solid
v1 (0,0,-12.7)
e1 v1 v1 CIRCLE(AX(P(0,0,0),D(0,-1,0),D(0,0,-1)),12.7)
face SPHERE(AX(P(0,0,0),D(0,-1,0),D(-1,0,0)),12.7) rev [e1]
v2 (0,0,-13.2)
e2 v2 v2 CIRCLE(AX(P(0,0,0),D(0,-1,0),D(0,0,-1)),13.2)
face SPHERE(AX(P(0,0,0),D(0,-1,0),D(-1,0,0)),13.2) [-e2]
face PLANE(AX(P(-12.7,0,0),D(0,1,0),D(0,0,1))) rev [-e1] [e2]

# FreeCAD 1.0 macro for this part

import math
import FreeCAD as App
import Part
import Sketcher

V = App.Vector
Q = App.Units.Quantity

doc = App.newDocument("Part")
body = doc.addObject("PartDesign::Body", "Body")

sketch1 = body.newObject("Sketcher::SketchObject", "Sketch")
sketch1.AttachmentSupport = (doc.getObject("XY_Plane"), [""])
sketch1.MapMode = "FlatFace"
sketch1.addGeometry([
    Part.LineSegment(V(-13.2, 0, 0), V(-12.7, 0, 0)),
    Part.ArcOfCircle(Part.Circle(V(0, 0, 0), V(0, 0, 1), 12.7), math.radians(90), math.radians(180)),
    Part.LineSegment(V(0, 12.7, 0), V(0, 13.2, 0)),
    Part.ArcOfCircle(Part.Circle(V(0, 0, 0), V(0, 0, 1), 13.2), math.radians(90), math.radians(180)),
], False)
sketch1.addConstraint([
    Sketcher.Constraint("Coincident", 0, 2, 1, 2),
    Sketcher.Constraint("Coincident", 1, 1, 2, 1),
    Sketcher.Constraint("Coincident", 2, 2, 3, 1),
    Sketcher.Constraint("Coincident", 3, 2, 0, 1),
    Sketcher.Constraint("Horizontal", 0),
    Sketcher.Constraint("Vertical", 2),
    Sketcher.Constraint("Coincident", 1, 3, -1, 1),
    Sketcher.Constraint("Coincident", 3, 3, -1, 1),
    Sketcher.Constraint("PointOnObject", 0, 2, -1),
    Sketcher.Constraint("PointOnObject", 1, 1, -2),
    Sketcher.Constraint("Radius", 1, Q("12.7 mm")),
    Sketcher.Constraint("Radius", 3, Q("13.2 mm")),
])
revolution = body.newObject("PartDesign::Revolution", "Revolution")
revolution.Profile = sketch1
revolution.ReferenceAxis = (sketch1, ["V_Axis"])
revolution.Angle = 360

doc.recompute()
